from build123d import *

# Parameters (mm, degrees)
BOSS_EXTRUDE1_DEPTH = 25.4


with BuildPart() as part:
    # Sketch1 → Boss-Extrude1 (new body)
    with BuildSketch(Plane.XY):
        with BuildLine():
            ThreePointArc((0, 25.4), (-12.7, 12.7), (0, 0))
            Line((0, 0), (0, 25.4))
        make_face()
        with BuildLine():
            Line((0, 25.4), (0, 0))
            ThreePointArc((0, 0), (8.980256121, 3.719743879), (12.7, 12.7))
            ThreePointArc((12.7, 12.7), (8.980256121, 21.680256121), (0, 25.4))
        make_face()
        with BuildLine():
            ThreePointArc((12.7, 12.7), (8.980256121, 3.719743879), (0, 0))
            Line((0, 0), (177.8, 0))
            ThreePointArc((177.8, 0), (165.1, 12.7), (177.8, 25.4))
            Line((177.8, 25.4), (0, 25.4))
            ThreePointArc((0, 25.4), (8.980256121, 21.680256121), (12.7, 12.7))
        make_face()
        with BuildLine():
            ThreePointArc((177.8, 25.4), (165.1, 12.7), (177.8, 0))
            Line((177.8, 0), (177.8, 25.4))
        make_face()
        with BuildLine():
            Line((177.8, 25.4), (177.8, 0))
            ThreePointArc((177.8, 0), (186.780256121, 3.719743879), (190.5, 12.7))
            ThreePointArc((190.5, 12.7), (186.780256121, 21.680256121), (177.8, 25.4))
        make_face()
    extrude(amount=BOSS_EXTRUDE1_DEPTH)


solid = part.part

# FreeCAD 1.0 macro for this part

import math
import FreeCAD as App
import Part
import Sketcher
Q = App.Units.Quantity

doc = App.newDocument("Part")
params = doc.addObject("Spreadsheet::Sheet", "Params")
for row, (alias, value) in enumerate([
    ("sketch1_radius", "0.5 in"),
    ("sketch1_width", "7 in"),
    ("pad1_length", "1 in"),
], start=1):
    params.set(f"A{row}", alias)
    params.set(f"B{row}", "=" + value)
    params.setAlias(f"B{row}", alias)

body = doc.addObject("PartDesign::Body", "Body")

# Sketch on XY plane
sketch1 = body.newObject("Sketcher::SketchObject", "Sketch")
sketch1.AttachmentSupport = (doc.getObject("XY_Plane"), [""])
sketch1.MapMode = "FlatFace"
sketch1.addGeometry([
    Part.LineSegment(App.Vector(0, 0, 0), App.Vector(178, 0, 0)),  # 0
    Part.ArcOfCircle(Part.Circle(App.Vector(178, 13, 0), App.Vector(0, 0, 1), 13), math.radians(-90), math.radians(0)),  # 1
    Part.ArcOfCircle(Part.Circle(App.Vector(178, 13, 0), App.Vector(0, 0, 1), 13), math.radians(0), math.radians(90)),  # 2
    Part.LineSegment(App.Vector(178, 25, 0), App.Vector(0, 25, 0)),  # 3
    Part.ArcOfCircle(Part.Circle(App.Vector(0, 13, 0), App.Vector(0, 0, 1), 13), math.radians(90), math.radians(270)),  # 4
], False)
sketch1.addConstraint([
    Sketcher.Constraint("Tangent", 0, 2, 1, 1),
    Sketcher.Constraint("Tangent", 1, 2, 2, 1),
    Sketcher.Constraint("Tangent", 2, 2, 3, 1),
    Sketcher.Constraint("Tangent", 3, 2, 4, 1),
    Sketcher.Constraint("Tangent", 4, 2, 0, 1),
    Sketcher.Constraint("Horizontal", 0),
    Sketcher.Constraint("Horizontal", 3),
    Sketcher.Constraint("Coincident", 4, 2, -1, 1),
    Sketcher.Constraint("Equal", 1, 2),
    Sketcher.Constraint("Horizontal", 4, 3, 1, 2),
    Sketcher.Constraint("Radius", 1, Q("0.5 in")),
    Sketcher.Constraint("DistanceX", 0, 1, 0, 2, Q("7 in")),
])
sketch1.setExpression("Constraints[10]", "Params.sketch1_radius")
sketch1.setExpression("Constraints[11]", "Params.sketch1_width")
pad1 = body.newObject("PartDesign::Pad", "Pad")
pad1.Profile = sketch1
pad1.setExpression("Length", "Params.pad1_length")

doc.recompute()
